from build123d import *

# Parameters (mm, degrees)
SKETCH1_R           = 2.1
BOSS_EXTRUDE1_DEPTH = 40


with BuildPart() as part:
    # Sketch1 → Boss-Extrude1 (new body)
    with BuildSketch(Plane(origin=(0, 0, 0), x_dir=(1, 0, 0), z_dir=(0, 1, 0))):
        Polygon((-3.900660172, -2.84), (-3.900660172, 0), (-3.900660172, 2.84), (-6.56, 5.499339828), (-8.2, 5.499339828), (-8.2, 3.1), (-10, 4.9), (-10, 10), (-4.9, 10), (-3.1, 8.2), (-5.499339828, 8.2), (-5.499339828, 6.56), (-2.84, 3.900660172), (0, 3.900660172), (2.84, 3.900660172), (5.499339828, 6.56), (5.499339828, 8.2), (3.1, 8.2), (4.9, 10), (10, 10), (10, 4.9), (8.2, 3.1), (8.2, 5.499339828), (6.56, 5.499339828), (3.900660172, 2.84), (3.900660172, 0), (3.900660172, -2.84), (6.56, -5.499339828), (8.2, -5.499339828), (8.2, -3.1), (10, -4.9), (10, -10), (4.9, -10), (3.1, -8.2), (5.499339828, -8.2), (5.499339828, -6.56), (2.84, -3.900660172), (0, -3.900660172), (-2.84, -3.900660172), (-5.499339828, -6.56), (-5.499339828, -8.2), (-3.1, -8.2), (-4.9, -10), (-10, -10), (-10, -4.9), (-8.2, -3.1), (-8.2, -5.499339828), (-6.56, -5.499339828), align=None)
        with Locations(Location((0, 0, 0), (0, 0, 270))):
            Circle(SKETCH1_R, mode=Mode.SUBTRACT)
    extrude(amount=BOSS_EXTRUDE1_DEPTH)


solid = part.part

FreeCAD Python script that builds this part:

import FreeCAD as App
import Part
import Sketcher
Q = App.Units.Quantity

doc = App.newDocument("Part")
body = doc.addObject("PartDesign::Body", "Body")

# Sketch on XZ plane
sketch1 = doc.addObject("Sketcher::SketchObject", "Sketch")
body.addObject(sketch1)
sketch1.AttachmentSupport = (doc.XZ_Plane, [""])
sketch1.MapMode = "FlatFace"
sketch1.addGeometry(Part.LineSegment(App.Vector(-3.90066, -2.84, 0), App.Vector(-3.90066, 2.84, 0)), False)
sketch1.addGeometry(Part.LineSegment(App.Vector(-3.90066, 2.84, 0), App.Vector(-6.56, 5.49934, 0)), False)
sketch1.addGeometry(Part.LineSegment(App.Vector(-6.56, 5.49934, 0), App.Vector(-8.2, 5.49934, 0)), False)
sketch1.addGeometry(Part.LineSegment(App.Vector(-8.2, 5.49934, 0), App.Vector(-8.2, 3.1, 0)), False)
sketch1.addGeometry(Part.LineSegment(App.Vector(-8.2, 3.1, 0), App.Vector(-10, 4.9, 0)), False)
sketch1.addGeometry(Part.LineSegment(App.Vector(-10, 4.9, 0), App.Vector(-10, 10, 0)), False)
sketch1.addGeometry(Part.LineSegment(App.Vector(-10, 10, 0), App.Vector(-4.9, 10, 0)), False)
sketch1.addGeometry(Part.LineSegment(App.Vector(-4.9, 10, 0), App.Vector(-3.1, 8.2, 0)), False)
sketch1.addGeometry(Part.LineSegment(App.Vector(-3.1, 8.2, 0), App.Vector(-5.49934, 8.2, 0)), False)
sketch1.addGeometry(Part.LineSegment(App.Vector(-5.49934, 8.2, 0), App.Vector(-5.49934, 6.56, 0)), False)
sketch1.addGeometry(Part.LineSegment(App.Vector(-5.49934, 6.56, 0), App.Vector(-2.84, 3.90066, 0)), False)
sketch1.addGeometry(Part.LineSegment(App.Vector(-2.84, 3.90066, 0), App.Vector(2.84, 3.90066, 0)), False)
sketch1.addGeometry(Part.LineSegment(App.Vector(2.84, 3.90066, 0), App.Vector(5.49934, 6.56, 0)), False)
sketch1.addGeometry(Part.LineSegment(App.Vector(5.49934, 6.56, 0), App.Vector(5.49934, 8.2, 0)), False)
sketch1.addGeometry(Part.LineSegment(App.Vector(5.49934, 8.2, 0), App.Vector(3.1, 8.2, 0)), False)
sketch1.addGeometry(Part.LineSegment(App.Vector(3.1, 8.2, 0), App.Vector(4.9, 10, 0)), False)
sketch1.addGeometry(Part.LineSegment(App.Vector(4.9, 10, 0), App.Vector(10, 10, 0)), False)
sketch1.addGeometry(Part.LineSegment(App.Vector(10, 10, 0), App.Vector(10, 4.9, 0)), False)
sketch1.addGeometry(Part.LineSegment(App.Vector(10, 4.9, 0), App.Vector(8.2, 3.1, 0)), False)
sketch1.addGeometry(Part.LineSegment(App.Vector(8.2, 3.1, 0), App.Vector(8.2, 5.49934, 0)), False)
sketch1.addGeometry(Part.LineSegment(App.Vector(8.2, 5.49934, 0), App.Vector(6.56, 5.49934, 0)), False)
sketch1.addGeometry(Part.LineSegment(App.Vector(6.56, 5.49934, 0), App.Vector(3.90066, 2.84, 0)), False)
sketch1.addGeometry(Part.LineSegment(App.Vector(3.90066, 2.84, 0), App.Vector(3.90066, -2.84, 0)), False)
sketch1.addGeometry(Part.LineSegment(App.Vector(3.90066, -2.84, 0), App.Vector(6.56, -5.49934, 0)), False)
sketch1.addGeometry(Part.LineSegment(App.Vector(6.56, -5.49934, 0), App.Vector(8.2, -5.49934, 0)), False)
sketch1.addGeometry(Part.LineSegment(App.Vector(8.2, -5.49934, 0), App.Vector(8.2, -3.1, 0)), False)
sketch1.addGeometry(Part.LineSegment(App.Vector(8.2, -3.1, 0), App.Vector(10, -4.9, 0)), False)
sketch1.addGeometry(Part.LineSegment(App.Vector(10, -4.9, 0), App.Vector(10, -10, 0)), False)
sketch1.addGeometry(Part.LineSegment(App.Vector(10, -10, 0), App.Vector(4.9, -10, 0)), False)
sketch1.addGeometry(Part.LineSegment(App.Vector(4.9, -10, 0), App.Vector(3.1, -8.2, 0)), False)
sketch1.addGeometry(Part.LineSegment(App.Vector(3.1, -8.2, 0), App.Vector(5.49934, -8.2, 0)), False)
sketch1.addGeometry(Part.LineSegment(App.Vector(5.49934, -8.2, 0), App.Vector(5.49934, -6.56, 0)), False)
sketch1.addGeometry(Part.LineSegment(App.Vector(5.49934, -6.56, 0), App.Vector(2.84, -3.90066, 0)), False)
sketch1.addGeometry(Part.LineSegment(App.Vector(2.84, -3.90066, 0), App.Vector(-2.84, -3.90066, 0)), False)
sketch1.addGeometry(Part.LineSegment(App.Vector(-2.84, -3.90066, 0), App.Vector(-5.49934, -6.56, 0)), False)
sketch1.addGeometry(Part.LineSegment(App.Vector(-5.49934, -6.56, 0), App.Vector(-5.49934, -8.2, 0)), False)
sketch1.addGeometry(Part.LineSegment(App.Vector(-5.49934, -8.2, 0), App.Vector(-3.1, -8.2, 0)), False)
sketch1.addGeometry(Part.LineSegment(App.Vector(-3.1, -8.2, 0), App.Vector(-4.9, -10, 0)), False)
sketch1.addGeometry(Part.LineSegment(App.Vector(-4.9, -10, 0), App.Vector(-10, -10, 0)), False)
sketch1.addGeometry(Part.LineSegment(App.Vector(-10, -10, 0), App.Vector(-10, -4.9, 0)), False)
sketch1.addGeometry(Part.LineSegment(App.Vector(-10, -4.9, 0), App.Vector(-8.2, -3.1, 0)), False)
sketch1.addGeometry(Part.LineSegment(App.Vector(-8.2, -3.1, 0), App.Vector(-8.2, -5.49934, 0)), False)
sketch1.addGeometry(Part.LineSegment(App.Vector(-8.2, -5.49934, 0), App.Vector(-6.56, -5.49934, 0)), False)
sketch1.addGeometry(Part.LineSegment(App.Vector(-6.56, -5.49934, 0), App.Vector(-3.90066, -2.84, 0)), False)
sketch1.addGeometry(Part.Circle(App.Vector(0, 0, 0), App.Vector(0, 0, 1), 2.1), False)
sketch1.addConstraint(Sketcher.Constraint("Coincident", 0, 2, 1, 1))
sketch1.addConstraint(Sketcher.Constraint("Coincident", 1, 2, 2, 1))
sketch1.addConstraint(Sketcher.Constraint("Coincident", 2, 2, 3, 1))
sketch1.addConstraint(Sketcher.Constraint("Coincident", 3, 2, 4, 1))
sketch1.addConstraint(Sketcher.Constraint("Coincident", 4, 2, 5, 1))
sketch1.addConstraint(Sketcher.Constraint("Coincident", 5, 2, 6, 1))
sketch1.addConstraint(Sketcher.Constraint("Coincident", 6, 2, 7, 1))
sketch1.addConstraint(Sketcher.Constraint("Coincident", 7, 2, 8, 1))
sketch1.addConstraint(Sketcher.Constraint("Coincident", 8, 2, 9, 1))
sketch1.addConstraint(Sketcher.Constraint("Coincident", 9, 2, 10, 1))
sketch1.addConstraint(Sketcher.Constraint("Coincident", 10, 2, 11, 1))
sketch1.addConstraint(Sketcher.Constraint("Coincident", 11, 2, 12, 1))
sketch1.addConstraint(Sketcher.Constraint("Coincident", 12, 2, 13, 1))
sketch1.addConstraint(Sketcher.Constraint("Coincident", 13, 2, 14, 1))
sketch1.addConstraint(Sketcher.Constraint("Coincident", 14, 2, 15, 1))
sketch1.addConstraint(Sketcher.Constraint("Coincident", 15, 2, 16, 1))
sketch1.addConstraint(Sketcher.Constraint("Coincident", 16, 2, 17, 1))
sketch1.addConstraint(Sketcher.Constraint("Coincident", 17, 2, 18, 1))
sketch1.addConstraint(Sketcher.Constraint("Coincident", 18, 2, 19, 1))
sketch1.addConstraint(Sketcher.Constraint("Coincident", 19, 2, 20, 1))
sketch1.addConstraint(Sketcher.Constraint("Coincident", 20, 2, 21, 1))
sketch1.addConstraint(Sketcher.Constraint("Coincident", 21, 2, 22, 1))
sketch1.addConstraint(Sketcher.Constraint("Coincident", 22, 2, 23, 1))
sketch1.addConstraint(Sketcher.Constraint("Coincident", 23, 2, 24, 1))
sketch1.addConstraint(Sketcher.Constraint("Coincident", 24, 2, 25, 1))
sketch1.addConstraint(Sketcher.Constraint("Coincident", 25, 2, 26, 1))
sketch1.addConstraint(Sketcher.Constraint("Coincident", 26, 2, 27, 1))
sketch1.addConstraint(Sketcher.Constraint("Coincident", 27, 2, 28, 1))
sketch1.addConstraint(Sketcher.Constraint("Coincident", 28, 2, 29, 1))
sketch1.addConstraint(Sketcher.Constraint("Coincident", 29, 2, 30, 1))
sketch1.addConstraint(Sketcher.Constraint("Coincident", 30, 2, 31, 1))
sketch1.addConstraint(Sketcher.Constraint("Coincident", 31, 2, 32, 1))
sketch1.addConstraint(Sketcher.Constraint("Coincident", 32, 2, 33, 1))
sketch1.addConstraint(Sketcher.Constraint("Coincident", 33, 2, 34, 1))
sketch1.addConstraint(Sketcher.Constraint("Coincident", 34, 2, 35, 1))
sketch1.addConstraint(Sketcher.Constraint("Coincident", 35, 2, 36, 1))
sketch1.addConstraint(Sketcher.Constraint("Coincident", 36, 2, 37, 1))
sketch1.addConstraint(Sketcher.Constraint("Coincident", 37, 2, 38, 1))
sketch1.addConstraint(Sketcher.Constraint("Coincident", 38, 2, 39, 1))
sketch1.addConstraint(Sketcher.Constraint("Coincident", 39, 2, 40, 1))
sketch1.addConstraint(Sketcher.Constraint("Coincident", 40, 2, 41, 1))
sketch1.addConstraint(Sketcher.Constraint("Coincident", 41, 2, 42, 1))
sketch1.addConstraint(Sketcher.Constraint("Coincident", 42, 2, 43, 1))
sketch1.addConstraint(Sketcher.Constraint("Coincident", 43, 2, 0, 1))
sketch1.addConstraint(Sketcher.Constraint("Vertical", 0))
sketch1.addConstraint(Sketcher.Constraint("Horizontal", 2))
sketch1.addConstraint(Sketcher.Constraint("Vertical", 3))
sketch1.addConstraint(Sketcher.Constraint("Vertical", 5))
sketch1.addConstraint(Sketcher.Constraint("Horizontal", 6))
sketch1.addConstraint(Sketcher.Constraint("Horizontal", 8))
sketch1.addConstraint(Sketcher.Constraint("Vertical", 9))
sketch1.addConstraint(Sketcher.Constraint("Horizontal", 11))
sketch1.addConstraint(Sketcher.Constraint("Vertical", 13))
sketch1.addConstraint(Sketcher.Constraint("Horizontal", 14))
sketch1.addConstraint(Sketcher.Constraint("Horizontal", 16))
sketch1.addConstraint(Sketcher.Constraint("Vertical", 17))
sketch1.addConstraint(Sketcher.Constraint("Vertical", 19))
sketch1.addConstraint(Sketcher.Constraint("Horizontal", 20))
sketch1.addConstraint(Sketcher.Constraint("Vertical", 22))
sketch1.addConstraint(Sketcher.Constraint("Horizontal", 24))
sketch1.addConstraint(Sketcher.Constraint("Vertical", 25))
sketch1.addConstraint(Sketcher.Constraint("Vertical", 27))
sketch1.addConstraint(Sketcher.Constraint("Horizontal", 28))
sketch1.addConstraint(Sketcher.Constraint("Horizontal", 30))
sketch1.addConstraint(Sketcher.Constraint("Vertical", 31))
sketch1.addConstraint(Sketcher.Constraint("Horizontal", 33))
sketch1.addConstraint(Sketcher.Constraint("Vertical", 35))
sketch1.addConstraint(Sketcher.Constraint("Horizontal", 36))
sketch1.addConstraint(Sketcher.Constraint("Horizontal", 38))
sketch1.addConstraint(Sketcher.Constraint("Vertical", 39))
sketch1.addConstraint(Sketcher.Constraint("Vertical", 41))
sketch1.addConstraint(Sketcher.Constraint("Horizontal", 42))
sketch1.addConstraint(Sketcher.Constraint("Coincident", 44, 3, -1, 1))
sketch1.addConstraint(Sketcher.Constraint("Symmetric", 0, 2, 22, 2, -1, 1))
sketch1.addConstraint(Sketcher.Constraint("Symmetric", 1, 2, 23, 2, -1, 1))
sketch1.addConstraint(Sketcher.Constraint("Symmetric", 3, 2, 25, 2, -1, 1))
sketch1.addConstraint(Sketcher.Constraint("Symmetric", 4, 2, 26, 2, -1, 1))
sketch1.addConstraint(Sketcher.Constraint("Symmetric", 6, 2, 28, 2, -1, 1))
sketch1.addConstraint(Sketcher.Constraint("Symmetric", 7, 2, 29, 2, -1, 1))
sketch1.addConstraint(Sketcher.Constraint("Symmetric", 9, 2, 31, 2, -1, 1))
sketch1.addConstraint(Sketcher.Constraint("Symmetric", 10, 2, 32, 2, -1, 1))
sketch1.addConstraint(Sketcher.Constraint("Symmetric", 12, 2, 34, 2, -1, 1))
sketch1.addConstraint(Sketcher.Constraint("Symmetric", 14, 2, 36, 2, -1, 1))
sketch1.addConstraint(Sketcher.Constraint("Symmetric", 15, 2, 37, 2, -1, 1))
sketch1.addConstraint(Sketcher.Constraint("Symmetric", 17, 2, 39, 2, -1, 1))
sketch1.addConstraint(Sketcher.Constraint("Symmetric", 18, 2, 40, 2, -1, 1))
sketch1.addConstraint(Sketcher.Constraint("Symmetric", 20, 2, 42, 2, -1, 1))
sketch1.addConstraint(Sketcher.Constraint("Symmetric", 9, 2, 12, 2, -2))
sketch1.addConstraint(Sketcher.Constraint("Symmetric", 7, 2, 14, 2, -2))
sketch1.addConstraint(Sketcher.Constraint("Symmetric", 6, 2, 15, 2, -2))
sketch1.addConstraint(Sketcher.Constraint("Symmetric", 4, 2, 17, 2, -2))
sketch1.addConstraint(Sketcher.Constraint("Symmetric", 3, 2, 18, 2, -2))
sketch1.addConstraint(Sketcher.Constraint("Symmetric", 1, 2, 20, 2, -2))
sketch1.addConstraint(Sketcher.Constraint("Parallel", 1, 4))
sketch1.addConstraint(Sketcher.Constraint("Parallel", 4, 7))
sketch1.addConstraint(Sketcher.Constraint("Parallel", 7, 10))
sketch1.addConstraint(Sketcher.Constraint("Perpendicular", 10, 12))
sketch1.addConstraint(Sketcher.Constraint("Parallel", 12, 15))
sketch1.addConstraint(Sketcher.Constraint("Parallel", 18, 21))
sketch1.addConstraint(Sketcher.Constraint("Perpendicular", 32, 34))
sketch1.addConstraint(Sketcher.Constraint("Parallel", 40, 43))
sketch1.addConstraint(Sketcher.Constraint("Equal", 33, 0))
sketch1.addConstraint(Sketcher.Constraint("Equal", 36, 3))
sketch1.addConstraint(Sketcher.Constraint("Equal", 38, 5))
sketch1.addConstraint(Sketcher.Constraint("Equal", 42, 9))
sketch1.addConstraint(Sketcher.Constraint("Equal", 4, 7))
sketch1.addConstraint(Sketcher.Constraint("Equal", 1, 10))
sketch1.addConstraint(Sketcher.Constraint("Diameter", 44, Q("4.2 mm")))
sketch1.addConstraint(Sketcher.Constraint("DistanceX", 6, 1, 6, 2, Q("5.1 mm")))
sketch1.addConstraint(Sketcher.Constraint("DistanceX", 4, 2, -1, 1, Q("10 mm")))
sketch1.addConstraint(Sketcher.Constraint("DistanceX", 7, 2, 15, 2, Q("8 mm")))
sketch1.addConstraint(Sketcher.Constraint("DistanceX", 2, 2, 2, 1, Q("1.64 mm")))
sketch1.addConstraint(Sketcher.Constraint("DistanceX", 11, 1, 11, 2, Q("5.68 mm")))
sketch1.addConstraint(Sketcher.Constraint("DistanceX", 8, 2, 8, 1, Q("2.39934 mm")))
pad1 = doc.addObject("PartDesign::Pad", "Pad")
body.addObject(pad1)
pad1.Profile = sketch1
pad1.Length = 40
pad1.Reversed = True

doc.recompute()
